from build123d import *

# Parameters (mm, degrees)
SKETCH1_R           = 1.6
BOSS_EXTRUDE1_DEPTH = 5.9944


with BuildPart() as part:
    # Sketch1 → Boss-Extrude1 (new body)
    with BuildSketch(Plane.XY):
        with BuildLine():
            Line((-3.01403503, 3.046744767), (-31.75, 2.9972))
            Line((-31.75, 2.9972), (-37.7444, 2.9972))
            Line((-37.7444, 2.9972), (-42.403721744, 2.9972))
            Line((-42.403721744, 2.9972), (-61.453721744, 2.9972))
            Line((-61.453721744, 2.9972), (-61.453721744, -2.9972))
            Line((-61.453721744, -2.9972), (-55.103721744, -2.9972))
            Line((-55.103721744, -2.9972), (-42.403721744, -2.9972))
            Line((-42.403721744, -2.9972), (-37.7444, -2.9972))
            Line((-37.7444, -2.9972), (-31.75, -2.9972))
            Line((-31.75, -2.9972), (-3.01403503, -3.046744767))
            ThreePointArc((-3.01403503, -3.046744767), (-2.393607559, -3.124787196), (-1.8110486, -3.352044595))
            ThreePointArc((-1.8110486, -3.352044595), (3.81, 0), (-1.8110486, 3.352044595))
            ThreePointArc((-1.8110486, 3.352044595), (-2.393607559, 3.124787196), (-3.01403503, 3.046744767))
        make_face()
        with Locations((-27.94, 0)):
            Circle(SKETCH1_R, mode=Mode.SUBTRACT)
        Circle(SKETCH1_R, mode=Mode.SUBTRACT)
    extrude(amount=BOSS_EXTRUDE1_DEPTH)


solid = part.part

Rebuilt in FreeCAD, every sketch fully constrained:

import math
import FreeCAD as App
import Part
import Sketcher

V = App.Vector
Q = App.Units.Quantity

doc = App.newDocument("Part")
body = doc.addObject("PartDesign::Body", "Body")

# Sketch on XY plane
sketch1 = body.newObject("Sketcher::SketchObject", "Sketch")
sketch1.AttachmentSupport = (doc.getObject("XY_Plane"), [""])
sketch1.MapMode = "FlatFace"
sketch1.addGeometry([
    Part.LineSegment(V(-3.014035, 3.046745, 0), V(-31.75, 2.9972, 0)),  # 0
    Part.LineSegment(V(-31.75, 2.9972, 0), V(-61.453722, 2.9972, 0)),  # 1
    Part.LineSegment(V(-61.453722, 2.9972, 0), V(-61.453722, -2.9972, 0)),  # 2
    Part.LineSegment(V(-61.453722, -2.9972, 0), V(-31.75, -2.9972, 0)),  # 3
    Part.LineSegment(V(-31.75, -2.9972, 0), V(-3.014035, -3.046745, 0)),  # 4
    Part.ArcOfCircle(Part.Circle(V(-3.018414, -5.586741, 0), V(0, 0, 1), 2.54), math.radians(61.618456), math.radians(89.901214)),  # 5
    Part.ArcOfCircle(Part.Circle(V(0, 0, 0), V(0, 0, 1), 3.81), math.radians(-118.381544), math.radians(118.381544)),  # 6
    Part.ArcOfCircle(Part.Circle(V(-3.018414, 5.586741, 0), V(0, 0, 1), 2.54), math.radians(-89.901214), math.radians(-61.618456)),  # 7
    Part.Circle(V(-27.94, 0, 0), V(0, 0, 1), 1.6),  # 8
    Part.Circle(V(0, 0, 0), V(0, 0, 1), 1.6),  # 9
], False)
sketch1.addConstraint([
    Sketcher.Constraint("Coincident", 0, 2, 1, 1),
    Sketcher.Constraint("Coincident", 1, 2, 2, 1),
    Sketcher.Constraint("Coincident", 2, 2, 3, 1),
    Sketcher.Constraint("Coincident", 3, 2, 4, 1),
    Sketcher.Constraint("Tangent", 4, 2, 5, 2),
    Sketcher.Constraint("Tangent", 5, 1, 6, 1),
    Sketcher.Constraint("Tangent", 6, 2, 7, 2),
    Sketcher.Constraint("Tangent", 7, 1, 0, 1),
    Sketcher.Constraint("Horizontal", 1),
    Sketcher.Constraint("Vertical", 2),
    Sketcher.Constraint("Horizontal", 3),
    Sketcher.Constraint("Coincident", 6, 3, -1, 1),
    Sketcher.Constraint("Coincident", 9, 3, -1, 1),
    Sketcher.Constraint("Equal", 5, 7),
    Sketcher.Constraint("Equal", 8, 9),
    Sketcher.Constraint("Symmetric", 0, 2, 3, 2, -1),
    Sketcher.Constraint("PointOnObject", 8, 3, -1),
    Sketcher.Constraint("Vertical", 5, 3, 7, 3),
    Sketcher.Constraint("Radius", 5, Q("0.1 in")),
    Sketcher.Constraint("Radius", 6, Q("0.15 in")),
    Sketcher.Constraint("DistanceX", 8, 3, -1, 1, Q("1.1 in")),
    Sketcher.Constraint("Diameter", 8, 3.2),
    Sketcher.Constraint("DistanceY", 2, 2, 2, 1, Q("0.236 in")),
    Sketcher.Constraint("DistanceX", 0, 2, -1, 1, Q("1.25 in")),
    Sketcher.Constraint("DistanceX", 1, 2, 1, 1, 29.703722),
    Sketcher.Constraint("DistanceY", 5, 1, 4, 2, 0.3053),
])
pad1 = body.newObject("PartDesign::Pad", "Pad")
pad1.Profile = sketch1
pad1.Length = Q("0.236 in")

doc.recompute()
